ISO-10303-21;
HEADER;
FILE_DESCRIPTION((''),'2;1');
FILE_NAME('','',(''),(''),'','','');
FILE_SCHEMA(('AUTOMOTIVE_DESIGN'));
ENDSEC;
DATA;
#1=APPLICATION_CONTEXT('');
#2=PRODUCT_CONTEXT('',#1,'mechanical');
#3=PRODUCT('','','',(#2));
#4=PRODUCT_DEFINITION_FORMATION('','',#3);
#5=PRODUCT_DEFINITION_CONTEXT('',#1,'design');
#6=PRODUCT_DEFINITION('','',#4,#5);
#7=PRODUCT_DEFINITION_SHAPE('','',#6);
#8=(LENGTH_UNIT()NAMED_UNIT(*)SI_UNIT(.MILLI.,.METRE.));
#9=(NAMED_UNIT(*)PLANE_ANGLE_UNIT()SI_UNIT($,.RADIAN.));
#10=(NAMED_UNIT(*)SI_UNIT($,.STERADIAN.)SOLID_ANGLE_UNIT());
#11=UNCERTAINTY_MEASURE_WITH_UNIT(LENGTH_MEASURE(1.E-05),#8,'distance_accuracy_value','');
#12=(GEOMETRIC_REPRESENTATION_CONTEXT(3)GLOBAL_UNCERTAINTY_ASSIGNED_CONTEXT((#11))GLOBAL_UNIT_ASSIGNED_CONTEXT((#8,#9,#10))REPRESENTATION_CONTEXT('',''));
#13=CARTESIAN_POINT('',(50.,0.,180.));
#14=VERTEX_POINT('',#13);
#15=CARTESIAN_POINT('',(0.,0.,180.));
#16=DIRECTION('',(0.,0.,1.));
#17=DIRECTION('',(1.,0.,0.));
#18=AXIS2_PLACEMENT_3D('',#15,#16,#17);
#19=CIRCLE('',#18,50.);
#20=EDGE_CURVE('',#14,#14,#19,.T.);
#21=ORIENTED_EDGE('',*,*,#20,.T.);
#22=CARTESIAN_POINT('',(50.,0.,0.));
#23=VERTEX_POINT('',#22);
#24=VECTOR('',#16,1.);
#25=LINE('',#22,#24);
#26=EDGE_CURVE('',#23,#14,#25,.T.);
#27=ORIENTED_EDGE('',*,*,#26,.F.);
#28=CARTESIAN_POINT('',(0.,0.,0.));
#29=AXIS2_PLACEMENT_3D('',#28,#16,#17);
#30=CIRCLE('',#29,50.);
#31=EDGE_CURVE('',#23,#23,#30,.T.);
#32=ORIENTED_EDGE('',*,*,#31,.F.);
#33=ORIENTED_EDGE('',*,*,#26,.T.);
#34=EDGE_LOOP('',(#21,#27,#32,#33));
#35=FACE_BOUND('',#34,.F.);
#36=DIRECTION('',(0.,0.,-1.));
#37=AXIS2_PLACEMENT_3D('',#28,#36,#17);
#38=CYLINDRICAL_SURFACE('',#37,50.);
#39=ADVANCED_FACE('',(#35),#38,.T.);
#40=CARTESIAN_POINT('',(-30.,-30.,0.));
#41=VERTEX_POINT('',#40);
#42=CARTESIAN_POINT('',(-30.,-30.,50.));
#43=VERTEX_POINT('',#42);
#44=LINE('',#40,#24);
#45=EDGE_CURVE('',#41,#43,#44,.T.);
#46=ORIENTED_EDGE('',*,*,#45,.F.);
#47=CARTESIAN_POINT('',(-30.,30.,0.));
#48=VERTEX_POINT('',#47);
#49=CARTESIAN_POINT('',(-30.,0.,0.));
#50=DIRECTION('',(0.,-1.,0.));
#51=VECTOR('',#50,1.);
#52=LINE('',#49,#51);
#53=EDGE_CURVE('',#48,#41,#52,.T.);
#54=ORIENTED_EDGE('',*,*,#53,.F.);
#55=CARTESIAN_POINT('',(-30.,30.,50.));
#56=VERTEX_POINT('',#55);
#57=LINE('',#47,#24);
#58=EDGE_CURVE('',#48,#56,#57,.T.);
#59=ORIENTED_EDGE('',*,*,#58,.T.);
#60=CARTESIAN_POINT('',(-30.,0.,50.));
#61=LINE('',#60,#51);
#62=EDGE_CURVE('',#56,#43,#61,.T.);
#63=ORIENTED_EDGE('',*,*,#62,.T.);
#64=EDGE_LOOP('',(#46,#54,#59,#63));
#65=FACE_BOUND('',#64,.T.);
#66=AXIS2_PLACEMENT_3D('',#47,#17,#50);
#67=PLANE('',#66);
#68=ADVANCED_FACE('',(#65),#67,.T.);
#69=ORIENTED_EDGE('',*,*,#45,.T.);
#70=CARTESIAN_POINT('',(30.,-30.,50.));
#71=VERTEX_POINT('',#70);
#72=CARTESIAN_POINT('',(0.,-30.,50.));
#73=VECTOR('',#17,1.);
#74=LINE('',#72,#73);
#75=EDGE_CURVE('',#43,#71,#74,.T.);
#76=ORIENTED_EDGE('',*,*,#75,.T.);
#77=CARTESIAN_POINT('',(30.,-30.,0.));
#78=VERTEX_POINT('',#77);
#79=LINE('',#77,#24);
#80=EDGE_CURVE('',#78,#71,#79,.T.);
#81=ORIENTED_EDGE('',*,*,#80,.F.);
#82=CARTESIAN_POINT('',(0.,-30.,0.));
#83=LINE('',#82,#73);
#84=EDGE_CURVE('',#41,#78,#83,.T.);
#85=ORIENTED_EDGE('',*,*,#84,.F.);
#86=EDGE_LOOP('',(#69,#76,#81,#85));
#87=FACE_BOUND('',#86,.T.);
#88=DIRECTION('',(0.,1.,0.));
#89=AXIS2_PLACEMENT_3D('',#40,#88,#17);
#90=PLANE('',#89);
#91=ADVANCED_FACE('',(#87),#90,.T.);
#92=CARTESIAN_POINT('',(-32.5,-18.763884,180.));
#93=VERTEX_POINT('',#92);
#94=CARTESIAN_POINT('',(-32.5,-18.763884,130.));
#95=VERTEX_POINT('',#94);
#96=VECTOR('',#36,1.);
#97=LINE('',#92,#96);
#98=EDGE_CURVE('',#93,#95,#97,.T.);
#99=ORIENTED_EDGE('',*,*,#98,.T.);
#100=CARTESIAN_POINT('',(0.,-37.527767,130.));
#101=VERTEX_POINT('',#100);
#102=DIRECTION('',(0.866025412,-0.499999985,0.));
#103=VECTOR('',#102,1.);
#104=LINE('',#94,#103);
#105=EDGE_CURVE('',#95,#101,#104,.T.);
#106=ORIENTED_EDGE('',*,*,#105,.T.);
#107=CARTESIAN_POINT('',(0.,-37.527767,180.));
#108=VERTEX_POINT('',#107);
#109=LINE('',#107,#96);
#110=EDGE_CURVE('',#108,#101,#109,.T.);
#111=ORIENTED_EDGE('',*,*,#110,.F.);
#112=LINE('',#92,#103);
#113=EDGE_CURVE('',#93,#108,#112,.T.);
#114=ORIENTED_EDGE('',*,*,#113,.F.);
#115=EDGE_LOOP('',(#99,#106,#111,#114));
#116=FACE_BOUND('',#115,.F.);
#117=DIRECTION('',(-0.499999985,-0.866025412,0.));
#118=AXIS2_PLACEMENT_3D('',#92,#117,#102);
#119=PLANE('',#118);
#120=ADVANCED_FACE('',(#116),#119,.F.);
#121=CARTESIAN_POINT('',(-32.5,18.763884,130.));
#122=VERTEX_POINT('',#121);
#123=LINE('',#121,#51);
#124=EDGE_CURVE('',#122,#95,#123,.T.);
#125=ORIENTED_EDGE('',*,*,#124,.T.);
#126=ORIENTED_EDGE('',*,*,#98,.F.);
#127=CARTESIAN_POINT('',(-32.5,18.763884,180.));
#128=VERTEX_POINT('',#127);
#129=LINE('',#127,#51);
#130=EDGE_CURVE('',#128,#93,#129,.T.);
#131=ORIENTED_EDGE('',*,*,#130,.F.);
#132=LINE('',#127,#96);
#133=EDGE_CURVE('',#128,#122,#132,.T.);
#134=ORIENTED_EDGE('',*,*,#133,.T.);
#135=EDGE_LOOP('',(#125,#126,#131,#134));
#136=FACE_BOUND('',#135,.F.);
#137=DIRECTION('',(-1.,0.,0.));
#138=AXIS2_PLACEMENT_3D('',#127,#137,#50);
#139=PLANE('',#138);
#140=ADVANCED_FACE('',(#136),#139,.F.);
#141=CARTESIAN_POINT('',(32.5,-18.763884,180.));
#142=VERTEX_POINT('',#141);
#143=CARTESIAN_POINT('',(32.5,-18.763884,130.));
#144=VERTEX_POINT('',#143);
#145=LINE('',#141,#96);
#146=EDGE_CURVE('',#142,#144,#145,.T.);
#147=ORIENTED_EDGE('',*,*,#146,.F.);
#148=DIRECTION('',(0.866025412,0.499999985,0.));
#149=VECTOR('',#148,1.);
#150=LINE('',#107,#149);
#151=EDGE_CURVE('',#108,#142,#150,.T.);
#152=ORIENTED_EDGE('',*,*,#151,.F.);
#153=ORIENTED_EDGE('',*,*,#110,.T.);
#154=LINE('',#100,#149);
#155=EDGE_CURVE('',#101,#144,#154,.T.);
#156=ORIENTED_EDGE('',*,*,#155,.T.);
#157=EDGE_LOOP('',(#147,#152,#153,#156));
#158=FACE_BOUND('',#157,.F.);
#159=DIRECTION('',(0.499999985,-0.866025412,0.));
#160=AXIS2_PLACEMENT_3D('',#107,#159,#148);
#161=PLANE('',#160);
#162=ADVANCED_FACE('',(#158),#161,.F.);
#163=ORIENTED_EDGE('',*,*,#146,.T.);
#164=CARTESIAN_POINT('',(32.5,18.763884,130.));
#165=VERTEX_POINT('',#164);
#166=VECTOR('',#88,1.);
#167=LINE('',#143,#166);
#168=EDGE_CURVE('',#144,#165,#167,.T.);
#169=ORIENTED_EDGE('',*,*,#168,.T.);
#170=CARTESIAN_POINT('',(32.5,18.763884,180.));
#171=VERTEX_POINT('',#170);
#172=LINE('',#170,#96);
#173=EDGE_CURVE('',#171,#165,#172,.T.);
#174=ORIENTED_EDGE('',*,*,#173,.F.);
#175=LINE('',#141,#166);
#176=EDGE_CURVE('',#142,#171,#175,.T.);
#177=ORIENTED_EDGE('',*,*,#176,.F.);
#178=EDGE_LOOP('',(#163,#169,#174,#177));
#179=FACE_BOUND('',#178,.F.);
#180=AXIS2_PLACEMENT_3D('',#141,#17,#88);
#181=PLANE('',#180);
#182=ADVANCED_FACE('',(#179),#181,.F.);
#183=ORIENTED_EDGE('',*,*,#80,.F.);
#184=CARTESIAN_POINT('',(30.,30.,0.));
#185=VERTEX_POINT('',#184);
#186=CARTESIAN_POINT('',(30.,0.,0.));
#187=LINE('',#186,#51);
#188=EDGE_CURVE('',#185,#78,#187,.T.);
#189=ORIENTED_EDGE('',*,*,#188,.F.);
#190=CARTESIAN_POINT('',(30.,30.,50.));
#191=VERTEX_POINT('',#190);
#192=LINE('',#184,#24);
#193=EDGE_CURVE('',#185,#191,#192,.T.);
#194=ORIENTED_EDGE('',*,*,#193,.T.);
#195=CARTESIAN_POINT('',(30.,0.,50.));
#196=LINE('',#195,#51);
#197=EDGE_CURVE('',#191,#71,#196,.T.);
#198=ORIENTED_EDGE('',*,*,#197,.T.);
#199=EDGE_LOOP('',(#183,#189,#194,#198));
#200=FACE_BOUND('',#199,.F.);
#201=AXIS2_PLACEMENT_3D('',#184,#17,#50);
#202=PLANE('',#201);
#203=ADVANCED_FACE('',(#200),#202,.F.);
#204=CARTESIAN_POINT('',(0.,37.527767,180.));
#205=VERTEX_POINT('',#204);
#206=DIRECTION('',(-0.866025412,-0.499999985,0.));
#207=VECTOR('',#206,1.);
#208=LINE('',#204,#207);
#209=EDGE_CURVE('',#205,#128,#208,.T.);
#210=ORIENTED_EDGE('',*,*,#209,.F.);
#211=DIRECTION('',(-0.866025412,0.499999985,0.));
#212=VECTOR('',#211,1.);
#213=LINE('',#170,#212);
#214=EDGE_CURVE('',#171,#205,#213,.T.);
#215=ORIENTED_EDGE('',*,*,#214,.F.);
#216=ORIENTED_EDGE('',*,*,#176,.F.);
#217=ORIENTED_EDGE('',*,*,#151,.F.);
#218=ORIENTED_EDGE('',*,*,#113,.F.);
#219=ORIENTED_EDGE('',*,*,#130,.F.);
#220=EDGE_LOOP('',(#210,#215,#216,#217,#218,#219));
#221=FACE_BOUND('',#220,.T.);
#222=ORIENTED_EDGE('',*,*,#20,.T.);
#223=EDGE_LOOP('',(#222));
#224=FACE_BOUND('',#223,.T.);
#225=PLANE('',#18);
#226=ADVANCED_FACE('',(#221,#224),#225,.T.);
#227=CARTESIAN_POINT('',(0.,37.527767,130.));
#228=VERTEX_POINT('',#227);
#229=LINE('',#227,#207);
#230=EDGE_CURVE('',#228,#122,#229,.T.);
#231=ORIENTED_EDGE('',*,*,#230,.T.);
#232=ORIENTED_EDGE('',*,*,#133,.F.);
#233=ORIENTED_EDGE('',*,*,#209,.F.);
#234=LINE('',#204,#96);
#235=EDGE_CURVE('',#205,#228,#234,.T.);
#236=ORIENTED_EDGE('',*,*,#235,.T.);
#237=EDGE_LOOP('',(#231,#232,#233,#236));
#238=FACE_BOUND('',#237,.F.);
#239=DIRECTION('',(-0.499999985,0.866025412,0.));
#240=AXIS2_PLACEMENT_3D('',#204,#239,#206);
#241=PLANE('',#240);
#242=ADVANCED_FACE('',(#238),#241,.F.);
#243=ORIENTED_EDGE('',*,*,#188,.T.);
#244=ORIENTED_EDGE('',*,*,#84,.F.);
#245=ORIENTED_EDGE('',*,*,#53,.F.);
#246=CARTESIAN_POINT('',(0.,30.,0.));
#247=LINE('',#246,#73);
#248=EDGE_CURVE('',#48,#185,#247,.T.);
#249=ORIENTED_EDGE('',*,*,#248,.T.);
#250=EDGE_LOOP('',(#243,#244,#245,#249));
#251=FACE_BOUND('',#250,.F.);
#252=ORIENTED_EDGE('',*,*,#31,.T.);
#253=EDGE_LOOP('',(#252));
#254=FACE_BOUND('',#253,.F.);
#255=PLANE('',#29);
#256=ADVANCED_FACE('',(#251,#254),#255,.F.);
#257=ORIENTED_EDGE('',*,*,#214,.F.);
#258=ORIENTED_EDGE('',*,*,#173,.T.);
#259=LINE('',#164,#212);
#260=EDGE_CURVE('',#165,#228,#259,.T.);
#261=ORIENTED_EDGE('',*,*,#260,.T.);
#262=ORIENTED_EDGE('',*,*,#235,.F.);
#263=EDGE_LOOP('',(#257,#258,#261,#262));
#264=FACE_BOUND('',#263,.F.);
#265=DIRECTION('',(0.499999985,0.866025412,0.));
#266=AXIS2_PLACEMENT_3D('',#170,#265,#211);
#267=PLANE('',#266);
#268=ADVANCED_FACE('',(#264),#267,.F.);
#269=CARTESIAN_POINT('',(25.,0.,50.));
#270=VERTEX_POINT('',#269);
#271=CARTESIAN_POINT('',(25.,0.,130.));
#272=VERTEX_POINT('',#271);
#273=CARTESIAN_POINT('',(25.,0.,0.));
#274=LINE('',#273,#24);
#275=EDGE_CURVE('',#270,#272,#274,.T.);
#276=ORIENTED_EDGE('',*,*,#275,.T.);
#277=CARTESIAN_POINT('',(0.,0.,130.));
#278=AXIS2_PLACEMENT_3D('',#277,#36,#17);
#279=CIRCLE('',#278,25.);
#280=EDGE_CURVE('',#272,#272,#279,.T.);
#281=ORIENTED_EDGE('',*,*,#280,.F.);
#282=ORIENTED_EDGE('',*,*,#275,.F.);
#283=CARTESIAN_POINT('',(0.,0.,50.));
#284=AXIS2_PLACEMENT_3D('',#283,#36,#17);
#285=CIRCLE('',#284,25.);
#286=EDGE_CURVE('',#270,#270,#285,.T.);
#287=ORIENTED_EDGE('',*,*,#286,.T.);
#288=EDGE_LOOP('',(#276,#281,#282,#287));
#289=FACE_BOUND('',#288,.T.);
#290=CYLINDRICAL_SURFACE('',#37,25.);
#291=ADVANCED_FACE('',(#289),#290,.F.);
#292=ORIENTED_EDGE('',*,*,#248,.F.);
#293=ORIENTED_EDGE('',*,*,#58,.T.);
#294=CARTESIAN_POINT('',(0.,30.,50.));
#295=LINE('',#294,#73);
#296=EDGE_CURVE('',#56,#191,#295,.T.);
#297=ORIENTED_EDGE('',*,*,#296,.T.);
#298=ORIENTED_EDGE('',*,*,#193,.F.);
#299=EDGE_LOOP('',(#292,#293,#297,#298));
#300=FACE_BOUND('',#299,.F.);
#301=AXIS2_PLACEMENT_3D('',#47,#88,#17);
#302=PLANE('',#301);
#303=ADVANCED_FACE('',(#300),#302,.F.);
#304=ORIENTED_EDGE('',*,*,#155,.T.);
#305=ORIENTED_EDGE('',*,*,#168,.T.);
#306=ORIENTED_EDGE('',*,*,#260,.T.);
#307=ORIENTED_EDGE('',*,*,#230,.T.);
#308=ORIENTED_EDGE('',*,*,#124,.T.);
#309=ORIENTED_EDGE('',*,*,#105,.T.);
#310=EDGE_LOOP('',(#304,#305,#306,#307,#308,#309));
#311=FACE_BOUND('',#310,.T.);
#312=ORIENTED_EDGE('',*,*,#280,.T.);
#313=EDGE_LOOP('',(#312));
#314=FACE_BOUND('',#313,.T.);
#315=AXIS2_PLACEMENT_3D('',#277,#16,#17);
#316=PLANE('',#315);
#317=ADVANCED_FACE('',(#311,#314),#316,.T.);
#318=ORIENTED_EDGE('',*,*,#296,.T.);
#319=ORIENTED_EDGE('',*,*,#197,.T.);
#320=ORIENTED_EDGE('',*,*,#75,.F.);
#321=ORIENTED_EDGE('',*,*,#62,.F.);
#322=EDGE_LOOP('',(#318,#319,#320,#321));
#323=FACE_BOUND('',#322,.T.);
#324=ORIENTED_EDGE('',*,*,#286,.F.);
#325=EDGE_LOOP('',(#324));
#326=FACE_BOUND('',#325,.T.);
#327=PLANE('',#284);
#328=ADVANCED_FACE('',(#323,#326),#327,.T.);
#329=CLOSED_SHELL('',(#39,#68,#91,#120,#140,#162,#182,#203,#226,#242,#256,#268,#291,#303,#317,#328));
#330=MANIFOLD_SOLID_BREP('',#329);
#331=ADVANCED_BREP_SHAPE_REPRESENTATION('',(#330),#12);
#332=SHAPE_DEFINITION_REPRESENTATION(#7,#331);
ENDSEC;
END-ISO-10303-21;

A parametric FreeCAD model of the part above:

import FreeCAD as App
import Part
import Sketcher

V = App.Vector
Q = App.Units.Quantity

doc = App.newDocument("Part")
body = doc.addObject("PartDesign::Body", "Body")

# Sketch on XY plane
sketch1 = body.newObject("Sketcher::SketchObject", "Sketch")
sketch1.AttachmentSupport = (doc.getObject("XY_Plane"), [""])
sketch1.MapMode = "FlatFace"
sketch1.addGeometry(Part.Circle(V(0, 0, 0), V(0, 0, 1), 50), False)
sketch1.addConstraint([
    Sketcher.Constraint("Coincident", 0, 3, -1, 1),
    Sketcher.Constraint("Diameter", 0, Q("100 mm")),
])
pad1 = body.newObject("PartDesign::Pad", "Pad")
pad1.Profile = sketch1
pad1.Length = 180

# Sketch on XY plane
sketch2 = body.newObject("Sketcher::SketchObject", "Sketch001")
sketch2.AttachmentSupport = (doc.getObject("XY_Plane"), [""])
sketch2.MapMode = "FlatFace"
sketch2.addGeometry(Part.Circle(V(0, 0, 0), V(0, 0, 1), 25), False)
sketch2.addConstraint([
    Sketcher.Constraint("Coincident", 0, 3, -1, 1),
    Sketcher.Constraint("Diameter", 0, Q("50 mm")),
])
pocket1 = body.newObject("PartDesign::Pocket", "Pocket")
pocket1.Profile = sketch2
pocket1.Type = "ThroughAll"
pocket1.Reversed = True

# Sketch on XY plane
sketch3 = body.newObject("Sketcher::SketchObject", "Sketch002")
sketch3.AttachmentSupport = (doc.getObject("XY_Plane"), [""])
sketch3.MapMode = "FlatFace"
sketch3.AttachmentOffset = App.Placement(V(0, 0, 180), App.Rotation())
sketch3.addGeometry([
    Part.LineSegment(V(-32, 19, 0), V(-32, -19, 0)),  # 0
    Part.LineSegment(V(-32, -19, 0), V(0, -38, 0)),  # 1
    Part.LineSegment(V(0, -38, 0), V(32, -19, 0)),  # 2
    Part.LineSegment(V(32, -19, 0), V(32, 19, 0)),  # 3
    Part.LineSegment(V(32, 19, 0), V(0, 38, 0)),  # 4
    Part.LineSegment(V(0, 38, 0), V(-32, 19, 0)),  # 5
], False)
sketch3.addConstraint([
    Sketcher.Constraint("Coincident", 0, 2, 1, 1),
    Sketcher.Constraint("Coincident", 1, 2, 2, 1),
    Sketcher.Constraint("Coincident", 2, 2, 3, 1),
    Sketcher.Constraint("Coincident", 3, 2, 4, 1),
    Sketcher.Constraint("Coincident", 4, 2, 5, 1),
    Sketcher.Constraint("Coincident", 5, 2, 0, 1),
    Sketcher.Constraint("Vertical", 0),
    Sketcher.Constraint("Vertical", 3),
    Sketcher.Constraint("Symmetric", 0, 2, 3, 2, -1, 1),
    Sketcher.Constraint("Symmetric", 1, 2, 4, 2, -1, 1),
    Sketcher.Constraint("PointOnObject", 1, 2, -2),
    Sketcher.Constraint("Parallel", 2, 5),
    Sketcher.Constraint("Horizontal", 0, 2, 2, 2),
    Sketcher.Constraint("Angle", 1, Q("-29.999999 deg")),
    Sketcher.Constraint("DistanceX", 0, 2, 2, 2, Q("65 mm")),
    Sketcher.Constraint("DistanceY", 0, 2, 0, 1, Q("37.527768 mm")),
])
pocket2 = body.newObject("PartDesign::Pocket", "Pocket001")
pocket2.Profile = sketch3
pocket2.Length = 50

# Sketch on XY plane
sketch4 = body.newObject("Sketcher::SketchObject", "Sketch003")
sketch4.AttachmentSupport = (doc.getObject("XY_Plane"), [""])
sketch4.MapMode = "FlatFace"
sketch4.addGeometry([
    Part.LineSegment(V(-30, -30, 0), V(-30, 30, 0)),
    Part.LineSegment(V(-30, 30, 0), V(30, 30, 0)),
    Part.LineSegment(V(30, 30, 0), V(30, -30, 0)),
    Part.LineSegment(V(30, -30, 0), V(-30, -30, 0)),
], False)
sketch4.addConstraint([
    Sketcher.Constraint("Coincident", 0, 2, 1, 1),
    Sketcher.Constraint("Coincident", 1, 2, 2, 1),
    Sketcher.Constraint("Coincident", 2, 2, 3, 1),
    Sketcher.Constraint("Coincident", 3, 2, 0, 1),
    Sketcher.Constraint("Vertical", 0),
    Sketcher.Constraint("Horizontal", 1),
    Sketcher.Constraint("Vertical", 2),
    Sketcher.Constraint("Horizontal", 3),
    Sketcher.Constraint("Symmetric", 0, 2, 2, 2, -1, 1),
    Sketcher.Constraint("Equal", 3, 0),
    Sketcher.Constraint("DistanceX", 1, 1, 1, 2, Q("60 mm")),
])
pocket3 = body.newObject("PartDesign::Pocket", "Pocket002")
pocket3.Profile = sketch4
pocket3.Length = 50
pocket3.Reversed = True

doc.recompute()
